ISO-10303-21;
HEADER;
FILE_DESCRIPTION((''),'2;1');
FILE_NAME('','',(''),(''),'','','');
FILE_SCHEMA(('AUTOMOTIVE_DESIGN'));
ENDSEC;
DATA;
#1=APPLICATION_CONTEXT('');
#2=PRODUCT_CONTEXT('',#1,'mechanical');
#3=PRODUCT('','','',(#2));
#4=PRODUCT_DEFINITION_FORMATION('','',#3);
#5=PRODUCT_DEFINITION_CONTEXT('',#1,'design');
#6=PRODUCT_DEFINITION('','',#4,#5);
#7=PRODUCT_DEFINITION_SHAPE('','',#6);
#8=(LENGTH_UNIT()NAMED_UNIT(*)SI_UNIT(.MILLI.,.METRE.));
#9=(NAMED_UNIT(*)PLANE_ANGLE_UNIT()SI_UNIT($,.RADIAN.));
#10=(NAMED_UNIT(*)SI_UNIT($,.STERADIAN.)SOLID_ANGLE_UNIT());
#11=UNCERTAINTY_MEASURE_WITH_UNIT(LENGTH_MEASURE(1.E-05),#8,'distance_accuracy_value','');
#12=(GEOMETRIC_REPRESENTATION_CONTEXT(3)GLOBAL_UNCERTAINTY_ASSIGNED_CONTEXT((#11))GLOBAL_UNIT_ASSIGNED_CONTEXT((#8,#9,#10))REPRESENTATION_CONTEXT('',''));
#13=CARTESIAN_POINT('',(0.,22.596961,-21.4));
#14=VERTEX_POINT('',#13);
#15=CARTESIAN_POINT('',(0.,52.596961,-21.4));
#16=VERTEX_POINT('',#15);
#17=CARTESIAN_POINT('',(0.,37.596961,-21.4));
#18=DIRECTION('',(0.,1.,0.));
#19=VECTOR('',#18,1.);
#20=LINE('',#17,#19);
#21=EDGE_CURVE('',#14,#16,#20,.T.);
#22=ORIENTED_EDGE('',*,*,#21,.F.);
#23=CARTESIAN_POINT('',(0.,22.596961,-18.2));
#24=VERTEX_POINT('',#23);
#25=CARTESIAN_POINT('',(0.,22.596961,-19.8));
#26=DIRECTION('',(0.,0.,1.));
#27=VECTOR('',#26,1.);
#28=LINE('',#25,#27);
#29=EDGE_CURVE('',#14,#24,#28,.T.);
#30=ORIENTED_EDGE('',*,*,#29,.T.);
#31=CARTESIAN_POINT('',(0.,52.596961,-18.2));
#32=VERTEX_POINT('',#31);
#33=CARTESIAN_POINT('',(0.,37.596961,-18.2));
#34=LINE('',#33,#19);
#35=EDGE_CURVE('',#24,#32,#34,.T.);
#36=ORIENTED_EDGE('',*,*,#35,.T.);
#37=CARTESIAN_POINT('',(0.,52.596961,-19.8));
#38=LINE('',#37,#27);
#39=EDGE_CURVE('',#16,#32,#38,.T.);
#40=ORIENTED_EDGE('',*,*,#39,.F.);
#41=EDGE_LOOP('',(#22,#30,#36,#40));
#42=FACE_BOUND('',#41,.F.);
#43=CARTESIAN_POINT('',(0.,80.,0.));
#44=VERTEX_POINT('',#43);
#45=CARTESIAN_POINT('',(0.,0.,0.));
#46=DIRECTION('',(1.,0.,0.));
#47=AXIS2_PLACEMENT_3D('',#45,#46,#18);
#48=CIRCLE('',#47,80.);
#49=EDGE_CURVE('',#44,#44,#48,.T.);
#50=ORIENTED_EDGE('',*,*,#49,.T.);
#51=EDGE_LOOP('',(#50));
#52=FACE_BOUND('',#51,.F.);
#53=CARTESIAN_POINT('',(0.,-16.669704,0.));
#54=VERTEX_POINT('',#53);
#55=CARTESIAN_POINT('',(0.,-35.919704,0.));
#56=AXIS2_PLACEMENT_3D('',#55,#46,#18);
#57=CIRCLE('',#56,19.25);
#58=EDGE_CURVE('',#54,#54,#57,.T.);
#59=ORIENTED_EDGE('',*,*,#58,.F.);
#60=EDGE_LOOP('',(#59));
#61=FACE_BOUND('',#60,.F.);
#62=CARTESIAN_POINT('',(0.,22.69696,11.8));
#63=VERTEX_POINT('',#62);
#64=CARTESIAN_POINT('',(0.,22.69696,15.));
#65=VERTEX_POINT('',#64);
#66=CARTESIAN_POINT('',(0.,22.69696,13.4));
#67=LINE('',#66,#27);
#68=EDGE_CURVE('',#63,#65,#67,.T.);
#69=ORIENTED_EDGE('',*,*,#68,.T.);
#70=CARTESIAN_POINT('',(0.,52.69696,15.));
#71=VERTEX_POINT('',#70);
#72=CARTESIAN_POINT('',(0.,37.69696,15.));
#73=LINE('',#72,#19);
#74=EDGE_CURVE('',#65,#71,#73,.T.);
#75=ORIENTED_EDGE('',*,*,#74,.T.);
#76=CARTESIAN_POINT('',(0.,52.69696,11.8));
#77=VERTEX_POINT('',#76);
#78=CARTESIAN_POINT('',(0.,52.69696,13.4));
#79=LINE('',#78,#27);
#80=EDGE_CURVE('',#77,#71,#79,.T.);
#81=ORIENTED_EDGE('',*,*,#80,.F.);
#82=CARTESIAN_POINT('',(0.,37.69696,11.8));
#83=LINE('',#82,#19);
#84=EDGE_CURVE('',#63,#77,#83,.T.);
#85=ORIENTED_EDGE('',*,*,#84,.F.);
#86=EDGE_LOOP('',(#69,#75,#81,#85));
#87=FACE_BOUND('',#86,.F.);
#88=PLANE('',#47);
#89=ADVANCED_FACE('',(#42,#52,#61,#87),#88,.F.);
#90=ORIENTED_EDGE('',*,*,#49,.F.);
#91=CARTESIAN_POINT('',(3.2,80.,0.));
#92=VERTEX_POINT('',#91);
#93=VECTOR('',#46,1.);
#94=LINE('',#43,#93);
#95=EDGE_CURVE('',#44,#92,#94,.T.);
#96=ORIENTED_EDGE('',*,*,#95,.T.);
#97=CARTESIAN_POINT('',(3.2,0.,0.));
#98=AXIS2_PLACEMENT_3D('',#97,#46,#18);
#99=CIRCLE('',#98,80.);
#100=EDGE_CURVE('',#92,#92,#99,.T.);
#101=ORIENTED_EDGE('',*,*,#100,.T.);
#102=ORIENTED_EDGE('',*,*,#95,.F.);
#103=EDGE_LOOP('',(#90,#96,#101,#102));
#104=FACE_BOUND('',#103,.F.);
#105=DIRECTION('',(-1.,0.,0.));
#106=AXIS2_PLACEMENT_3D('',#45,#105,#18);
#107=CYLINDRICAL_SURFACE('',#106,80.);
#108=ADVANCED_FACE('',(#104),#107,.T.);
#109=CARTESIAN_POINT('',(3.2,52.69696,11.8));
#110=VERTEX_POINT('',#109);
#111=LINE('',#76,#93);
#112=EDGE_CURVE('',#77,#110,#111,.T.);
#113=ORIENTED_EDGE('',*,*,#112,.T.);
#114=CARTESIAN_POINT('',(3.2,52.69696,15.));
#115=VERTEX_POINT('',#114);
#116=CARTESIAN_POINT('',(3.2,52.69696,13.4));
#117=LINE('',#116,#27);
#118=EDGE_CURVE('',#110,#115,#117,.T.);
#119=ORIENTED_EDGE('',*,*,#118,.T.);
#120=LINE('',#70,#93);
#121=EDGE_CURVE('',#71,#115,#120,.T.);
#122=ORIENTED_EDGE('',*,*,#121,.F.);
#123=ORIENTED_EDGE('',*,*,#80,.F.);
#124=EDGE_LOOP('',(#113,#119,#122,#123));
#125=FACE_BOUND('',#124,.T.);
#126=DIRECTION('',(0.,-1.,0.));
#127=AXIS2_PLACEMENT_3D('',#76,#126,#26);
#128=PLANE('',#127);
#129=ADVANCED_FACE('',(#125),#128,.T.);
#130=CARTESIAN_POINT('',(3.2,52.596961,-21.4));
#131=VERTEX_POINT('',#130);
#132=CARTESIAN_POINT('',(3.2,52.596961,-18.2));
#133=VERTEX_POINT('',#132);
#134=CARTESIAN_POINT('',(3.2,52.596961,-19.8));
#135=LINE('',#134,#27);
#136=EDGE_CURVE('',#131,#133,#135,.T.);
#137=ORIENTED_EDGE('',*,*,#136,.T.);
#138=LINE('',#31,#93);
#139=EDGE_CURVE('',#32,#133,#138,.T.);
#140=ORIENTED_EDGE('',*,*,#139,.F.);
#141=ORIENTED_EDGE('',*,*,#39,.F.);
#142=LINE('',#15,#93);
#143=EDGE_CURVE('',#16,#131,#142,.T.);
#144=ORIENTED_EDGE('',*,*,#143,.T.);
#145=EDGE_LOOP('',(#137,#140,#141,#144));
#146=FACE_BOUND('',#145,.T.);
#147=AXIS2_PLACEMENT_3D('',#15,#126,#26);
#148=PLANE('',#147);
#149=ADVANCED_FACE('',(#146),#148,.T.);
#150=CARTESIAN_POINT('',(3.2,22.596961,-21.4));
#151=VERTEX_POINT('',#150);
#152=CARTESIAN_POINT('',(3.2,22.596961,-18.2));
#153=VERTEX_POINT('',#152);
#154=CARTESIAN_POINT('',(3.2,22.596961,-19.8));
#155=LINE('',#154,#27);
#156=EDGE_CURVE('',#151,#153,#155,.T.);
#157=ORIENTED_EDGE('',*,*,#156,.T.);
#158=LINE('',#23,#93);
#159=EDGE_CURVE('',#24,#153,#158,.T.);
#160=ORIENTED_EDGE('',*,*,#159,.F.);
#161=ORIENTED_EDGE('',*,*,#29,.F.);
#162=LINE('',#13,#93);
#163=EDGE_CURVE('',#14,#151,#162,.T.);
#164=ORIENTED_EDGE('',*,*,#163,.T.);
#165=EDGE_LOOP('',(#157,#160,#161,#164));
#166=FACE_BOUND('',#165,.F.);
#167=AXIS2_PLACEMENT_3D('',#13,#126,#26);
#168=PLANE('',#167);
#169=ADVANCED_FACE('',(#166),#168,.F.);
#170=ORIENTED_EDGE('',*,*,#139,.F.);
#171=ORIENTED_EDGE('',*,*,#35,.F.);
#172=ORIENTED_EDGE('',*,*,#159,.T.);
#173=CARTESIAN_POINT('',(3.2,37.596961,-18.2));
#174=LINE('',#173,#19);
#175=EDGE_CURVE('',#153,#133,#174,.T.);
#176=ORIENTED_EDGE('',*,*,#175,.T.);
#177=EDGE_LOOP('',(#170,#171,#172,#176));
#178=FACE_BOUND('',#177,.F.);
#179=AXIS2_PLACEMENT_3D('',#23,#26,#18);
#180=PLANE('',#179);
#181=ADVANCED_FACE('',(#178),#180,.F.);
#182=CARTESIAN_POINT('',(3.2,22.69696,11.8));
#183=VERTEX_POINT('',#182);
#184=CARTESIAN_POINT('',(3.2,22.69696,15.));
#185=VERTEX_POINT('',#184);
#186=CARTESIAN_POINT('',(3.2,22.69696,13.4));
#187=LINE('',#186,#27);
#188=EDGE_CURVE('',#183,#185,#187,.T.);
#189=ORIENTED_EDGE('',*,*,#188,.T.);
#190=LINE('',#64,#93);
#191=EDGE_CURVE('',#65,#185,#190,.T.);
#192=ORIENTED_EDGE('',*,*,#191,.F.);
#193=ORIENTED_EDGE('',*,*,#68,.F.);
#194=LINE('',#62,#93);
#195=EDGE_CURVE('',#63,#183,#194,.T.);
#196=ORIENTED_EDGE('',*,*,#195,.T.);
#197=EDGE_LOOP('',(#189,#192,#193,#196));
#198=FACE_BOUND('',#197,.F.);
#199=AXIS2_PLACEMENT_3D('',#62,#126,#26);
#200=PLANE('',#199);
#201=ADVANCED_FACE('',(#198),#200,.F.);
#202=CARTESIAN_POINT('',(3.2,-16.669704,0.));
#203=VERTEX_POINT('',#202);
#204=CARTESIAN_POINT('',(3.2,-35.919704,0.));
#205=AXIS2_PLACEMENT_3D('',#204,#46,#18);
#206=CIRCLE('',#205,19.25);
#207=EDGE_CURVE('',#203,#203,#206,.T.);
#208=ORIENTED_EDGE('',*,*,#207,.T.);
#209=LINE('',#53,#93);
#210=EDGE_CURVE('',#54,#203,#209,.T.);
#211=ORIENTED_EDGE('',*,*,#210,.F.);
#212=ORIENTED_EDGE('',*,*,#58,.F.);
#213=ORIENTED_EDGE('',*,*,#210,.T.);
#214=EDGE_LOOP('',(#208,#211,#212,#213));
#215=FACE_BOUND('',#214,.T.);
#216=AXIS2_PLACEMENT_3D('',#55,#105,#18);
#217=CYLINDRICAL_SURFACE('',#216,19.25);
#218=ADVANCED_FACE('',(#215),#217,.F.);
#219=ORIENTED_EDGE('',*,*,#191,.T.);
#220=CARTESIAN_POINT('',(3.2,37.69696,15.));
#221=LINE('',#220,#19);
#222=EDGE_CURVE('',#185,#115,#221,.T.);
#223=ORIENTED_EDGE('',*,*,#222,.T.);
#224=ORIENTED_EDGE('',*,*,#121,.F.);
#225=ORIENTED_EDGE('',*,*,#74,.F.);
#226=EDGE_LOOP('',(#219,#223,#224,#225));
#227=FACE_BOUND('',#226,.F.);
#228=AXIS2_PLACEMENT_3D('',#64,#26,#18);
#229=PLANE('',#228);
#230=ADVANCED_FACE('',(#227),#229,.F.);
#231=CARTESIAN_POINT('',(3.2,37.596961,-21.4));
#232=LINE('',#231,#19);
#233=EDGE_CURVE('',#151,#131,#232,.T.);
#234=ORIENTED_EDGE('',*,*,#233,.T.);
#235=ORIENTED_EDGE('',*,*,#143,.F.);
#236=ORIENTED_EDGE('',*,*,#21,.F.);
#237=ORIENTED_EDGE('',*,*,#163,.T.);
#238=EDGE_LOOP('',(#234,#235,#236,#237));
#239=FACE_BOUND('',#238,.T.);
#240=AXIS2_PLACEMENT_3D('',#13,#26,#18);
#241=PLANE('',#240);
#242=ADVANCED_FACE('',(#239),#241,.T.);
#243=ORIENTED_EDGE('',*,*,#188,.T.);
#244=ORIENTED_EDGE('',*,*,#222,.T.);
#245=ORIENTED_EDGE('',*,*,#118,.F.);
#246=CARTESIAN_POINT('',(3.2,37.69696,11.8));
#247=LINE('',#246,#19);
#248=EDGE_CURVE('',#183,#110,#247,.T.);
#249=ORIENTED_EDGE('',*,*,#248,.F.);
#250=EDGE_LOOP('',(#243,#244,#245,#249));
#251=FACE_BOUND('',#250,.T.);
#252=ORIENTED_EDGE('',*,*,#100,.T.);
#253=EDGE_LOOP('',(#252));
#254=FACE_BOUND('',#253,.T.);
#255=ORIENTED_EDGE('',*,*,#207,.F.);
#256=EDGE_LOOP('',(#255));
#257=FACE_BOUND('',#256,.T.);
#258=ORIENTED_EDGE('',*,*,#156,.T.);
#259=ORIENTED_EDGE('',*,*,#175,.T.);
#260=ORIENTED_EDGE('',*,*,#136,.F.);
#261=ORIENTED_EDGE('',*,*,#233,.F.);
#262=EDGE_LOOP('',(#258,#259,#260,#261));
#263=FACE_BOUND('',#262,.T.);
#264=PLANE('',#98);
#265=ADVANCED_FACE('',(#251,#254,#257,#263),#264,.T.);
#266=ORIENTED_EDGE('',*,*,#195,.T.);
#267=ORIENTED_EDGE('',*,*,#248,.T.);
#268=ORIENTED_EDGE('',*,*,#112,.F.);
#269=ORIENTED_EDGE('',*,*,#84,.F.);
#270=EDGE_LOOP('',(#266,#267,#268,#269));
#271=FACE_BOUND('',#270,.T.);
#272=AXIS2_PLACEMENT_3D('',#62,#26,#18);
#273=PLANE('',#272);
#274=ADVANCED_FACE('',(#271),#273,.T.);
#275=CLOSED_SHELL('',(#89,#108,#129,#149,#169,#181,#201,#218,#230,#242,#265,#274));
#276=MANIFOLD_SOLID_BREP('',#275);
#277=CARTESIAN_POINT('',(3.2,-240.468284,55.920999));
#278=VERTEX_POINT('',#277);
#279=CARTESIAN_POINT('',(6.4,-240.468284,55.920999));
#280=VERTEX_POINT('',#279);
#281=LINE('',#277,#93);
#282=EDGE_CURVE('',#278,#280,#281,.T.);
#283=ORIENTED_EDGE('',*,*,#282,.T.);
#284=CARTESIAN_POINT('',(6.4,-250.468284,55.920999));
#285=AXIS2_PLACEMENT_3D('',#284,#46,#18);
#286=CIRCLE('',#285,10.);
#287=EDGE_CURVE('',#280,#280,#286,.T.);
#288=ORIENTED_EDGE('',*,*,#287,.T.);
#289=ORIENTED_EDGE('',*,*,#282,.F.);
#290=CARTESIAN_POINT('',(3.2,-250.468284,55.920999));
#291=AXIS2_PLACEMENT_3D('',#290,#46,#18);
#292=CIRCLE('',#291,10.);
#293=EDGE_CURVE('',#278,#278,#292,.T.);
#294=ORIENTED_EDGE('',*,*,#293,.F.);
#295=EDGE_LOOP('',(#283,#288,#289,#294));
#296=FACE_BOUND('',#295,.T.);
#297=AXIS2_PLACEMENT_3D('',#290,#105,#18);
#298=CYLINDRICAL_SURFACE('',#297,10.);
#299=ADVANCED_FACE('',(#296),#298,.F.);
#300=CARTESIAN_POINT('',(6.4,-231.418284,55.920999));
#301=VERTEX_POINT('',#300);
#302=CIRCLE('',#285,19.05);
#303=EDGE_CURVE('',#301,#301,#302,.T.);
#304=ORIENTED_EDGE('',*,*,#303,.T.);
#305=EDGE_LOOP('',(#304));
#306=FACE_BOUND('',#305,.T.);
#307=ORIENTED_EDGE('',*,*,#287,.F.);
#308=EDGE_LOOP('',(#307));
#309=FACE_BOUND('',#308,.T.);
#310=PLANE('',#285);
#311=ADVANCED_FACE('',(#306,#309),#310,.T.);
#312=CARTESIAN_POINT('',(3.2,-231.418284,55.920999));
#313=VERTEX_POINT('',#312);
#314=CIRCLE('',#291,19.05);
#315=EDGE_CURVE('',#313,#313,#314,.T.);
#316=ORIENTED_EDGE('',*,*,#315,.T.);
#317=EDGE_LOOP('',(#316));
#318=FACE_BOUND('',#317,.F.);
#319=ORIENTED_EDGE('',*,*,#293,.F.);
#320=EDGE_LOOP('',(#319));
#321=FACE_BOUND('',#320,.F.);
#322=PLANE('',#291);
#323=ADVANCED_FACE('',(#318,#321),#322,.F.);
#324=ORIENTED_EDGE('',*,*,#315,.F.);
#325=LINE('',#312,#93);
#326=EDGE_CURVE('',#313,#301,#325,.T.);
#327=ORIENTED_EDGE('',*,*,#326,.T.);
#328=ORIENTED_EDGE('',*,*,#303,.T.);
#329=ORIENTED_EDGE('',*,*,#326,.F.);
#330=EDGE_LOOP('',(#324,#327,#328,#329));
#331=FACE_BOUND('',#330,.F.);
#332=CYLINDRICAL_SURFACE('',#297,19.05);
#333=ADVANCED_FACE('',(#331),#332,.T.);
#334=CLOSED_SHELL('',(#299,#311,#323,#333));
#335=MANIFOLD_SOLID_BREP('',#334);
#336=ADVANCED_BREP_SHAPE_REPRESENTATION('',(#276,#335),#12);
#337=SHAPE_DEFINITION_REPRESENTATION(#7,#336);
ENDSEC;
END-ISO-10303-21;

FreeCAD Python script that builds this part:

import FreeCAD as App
import Part
import Sketcher
Q = App.Units.Quantity


def add_polygon(sketch, points):
    """Adds a closed chain of lines whose ends are joined by coincident constraints."""
    first, n = sketch.GeometryCount, len(points)
    for a, b in zip(points, points[1:] + points[:1]):
        sketch.addGeometry(Part.LineSegment(App.Vector(*a, 0), App.Vector(*b, 0)), False)
    for i in range(n):
        sketch.addConstraint(Sketcher.Constraint("Coincident", first + i, 2, first + (i + 1) % n, 1))

doc = App.newDocument("Part")
body = doc.addObject("PartDesign::Body", "Body")

# Sketch on YZ plane
sketch1 = body.newObject("Sketcher::SketchObject", "Sketch")
sketch1.AttachmentSupport = (doc.getObject("YZ_Plane"), [""])
sketch1.MapMode = "FlatFace"
sketch1.addGeometry(Part.Circle(App.Vector(0, 0, 0), App.Vector(0, 0, 1), 80), False)  # 0
add_polygon(sketch1, [(52.596961, -21.4), (22.596961, -21.4), (22.596961, -18.2), (52.596961, -18.2)])  # lines 1-4
sketch1.addGeometry(Part.Circle(App.Vector(-35.919704, 0, 0), App.Vector(0, 0, 1), 19.25), False)  # 5
add_polygon(sketch1, [(52.69696, 11.8), (22.69696, 11.8), (22.69696, 15), (52.69696, 15)])  # lines 6-9
sketch1.addConstraint(Sketcher.Constraint("Horizontal", 1))
sketch1.addConstraint(Sketcher.Constraint("Vertical", 2))
sketch1.addConstraint(Sketcher.Constraint("Horizontal", 3))
sketch1.addConstraint(Sketcher.Constraint("Vertical", 4))
sketch1.addConstraint(Sketcher.Constraint("Horizontal", 6))
sketch1.addConstraint(Sketcher.Constraint("Vertical", 7))
sketch1.addConstraint(Sketcher.Constraint("Horizontal", 8))
sketch1.addConstraint(Sketcher.Constraint("Vertical", 9))
sketch1.addConstraint(Sketcher.Constraint("Coincident", 0, 3, -1, 1))
sketch1.addConstraint(Sketcher.Constraint("PointOnObject", 5, 3, -1))
sketch1.addConstraint(Sketcher.Constraint("Equal", 3, 6))
sketch1.addConstraint(Sketcher.Constraint("Equal", 4, 7))
sketch1.addConstraint(Sketcher.Constraint("Diameter", 0, Q("160 mm")))
sketch1.addConstraint(Sketcher.Constraint("Diameter", 5, Q("38.5 mm")))
sketch1.addConstraint(Sketcher.Constraint("DistanceX", 1, 2, 1, 1, Q("30 mm")))
sketch1.addConstraint(Sketcher.Constraint("DistanceY", 2, 1, 2, 2, Q("3.2 mm")))
sketch1.addConstraint(Sketcher.Constraint("DistanceY", -1, 1, 7, 2, Q("15 mm")))
sketch1.addConstraint(Sketcher.Constraint("DistanceY", 2, 2, 6, 2, Q("30 mm")))
sketch1.addConstraint(Sketcher.Constraint("DistanceX", 2, 2, 6, 2, Q("0.099999 mm")))
sketch1.addConstraint(Sketcher.Constraint("DistanceX", -1, 1, 1, 2, Q("22.596961 mm")))
sketch1.addConstraint(Sketcher.Constraint("DistanceX", 5, 3, -1, 1, Q("35.919704 mm")))
pad1 = body.newObject("PartDesign::Pad", "Pad")
pad1.Profile = sketch1
pad1.Length = 3.2
body2 = doc.addObject("PartDesign::Body", "Body001")

# Sketch on YZ plane
sketch2 = body2.newObject("Sketcher::SketchObject", "Sketch001")
sketch2.AttachmentSupport = (doc.getObject("YZ_Plane001"), [""])
sketch2.MapMode = "FlatFace"
sketch2.AttachmentOffset = App.Placement(App.Vector(0, 0, 3.2), App.Rotation())
sketch2.addGeometry(Part.Circle(App.Vector(-250.468284, 55.920999, 0), App.Vector(0, 0, 1), 19.05), False)
sketch2.addGeometry(Part.Circle(App.Vector(-250.468284, 55.920999, 0), App.Vector(0, 0, 1), 10), False)
sketch2.addConstraint(Sketcher.Constraint("Coincident", 1, 3, 0, 3))
sketch2.addConstraint(Sketcher.Constraint("Diameter", 1, Q("20 mm")))
sketch2.addConstraint(Sketcher.Constraint("Diameter", 0, Q("38.1 mm")))
sketch2.addConstraint(Sketcher.Constraint("DistanceY", -1, 1, 0, 3, Q("55.920999 mm")))
sketch2.addConstraint(Sketcher.Constraint("DistanceX", 0, 3, -1, 1, Q("250.468284 mm")))
pad2 = body2.newObject("PartDesign::Pad", "Pad001")
pad2.Profile = sketch2
pad2.Length = 3.2

doc.recompute()
